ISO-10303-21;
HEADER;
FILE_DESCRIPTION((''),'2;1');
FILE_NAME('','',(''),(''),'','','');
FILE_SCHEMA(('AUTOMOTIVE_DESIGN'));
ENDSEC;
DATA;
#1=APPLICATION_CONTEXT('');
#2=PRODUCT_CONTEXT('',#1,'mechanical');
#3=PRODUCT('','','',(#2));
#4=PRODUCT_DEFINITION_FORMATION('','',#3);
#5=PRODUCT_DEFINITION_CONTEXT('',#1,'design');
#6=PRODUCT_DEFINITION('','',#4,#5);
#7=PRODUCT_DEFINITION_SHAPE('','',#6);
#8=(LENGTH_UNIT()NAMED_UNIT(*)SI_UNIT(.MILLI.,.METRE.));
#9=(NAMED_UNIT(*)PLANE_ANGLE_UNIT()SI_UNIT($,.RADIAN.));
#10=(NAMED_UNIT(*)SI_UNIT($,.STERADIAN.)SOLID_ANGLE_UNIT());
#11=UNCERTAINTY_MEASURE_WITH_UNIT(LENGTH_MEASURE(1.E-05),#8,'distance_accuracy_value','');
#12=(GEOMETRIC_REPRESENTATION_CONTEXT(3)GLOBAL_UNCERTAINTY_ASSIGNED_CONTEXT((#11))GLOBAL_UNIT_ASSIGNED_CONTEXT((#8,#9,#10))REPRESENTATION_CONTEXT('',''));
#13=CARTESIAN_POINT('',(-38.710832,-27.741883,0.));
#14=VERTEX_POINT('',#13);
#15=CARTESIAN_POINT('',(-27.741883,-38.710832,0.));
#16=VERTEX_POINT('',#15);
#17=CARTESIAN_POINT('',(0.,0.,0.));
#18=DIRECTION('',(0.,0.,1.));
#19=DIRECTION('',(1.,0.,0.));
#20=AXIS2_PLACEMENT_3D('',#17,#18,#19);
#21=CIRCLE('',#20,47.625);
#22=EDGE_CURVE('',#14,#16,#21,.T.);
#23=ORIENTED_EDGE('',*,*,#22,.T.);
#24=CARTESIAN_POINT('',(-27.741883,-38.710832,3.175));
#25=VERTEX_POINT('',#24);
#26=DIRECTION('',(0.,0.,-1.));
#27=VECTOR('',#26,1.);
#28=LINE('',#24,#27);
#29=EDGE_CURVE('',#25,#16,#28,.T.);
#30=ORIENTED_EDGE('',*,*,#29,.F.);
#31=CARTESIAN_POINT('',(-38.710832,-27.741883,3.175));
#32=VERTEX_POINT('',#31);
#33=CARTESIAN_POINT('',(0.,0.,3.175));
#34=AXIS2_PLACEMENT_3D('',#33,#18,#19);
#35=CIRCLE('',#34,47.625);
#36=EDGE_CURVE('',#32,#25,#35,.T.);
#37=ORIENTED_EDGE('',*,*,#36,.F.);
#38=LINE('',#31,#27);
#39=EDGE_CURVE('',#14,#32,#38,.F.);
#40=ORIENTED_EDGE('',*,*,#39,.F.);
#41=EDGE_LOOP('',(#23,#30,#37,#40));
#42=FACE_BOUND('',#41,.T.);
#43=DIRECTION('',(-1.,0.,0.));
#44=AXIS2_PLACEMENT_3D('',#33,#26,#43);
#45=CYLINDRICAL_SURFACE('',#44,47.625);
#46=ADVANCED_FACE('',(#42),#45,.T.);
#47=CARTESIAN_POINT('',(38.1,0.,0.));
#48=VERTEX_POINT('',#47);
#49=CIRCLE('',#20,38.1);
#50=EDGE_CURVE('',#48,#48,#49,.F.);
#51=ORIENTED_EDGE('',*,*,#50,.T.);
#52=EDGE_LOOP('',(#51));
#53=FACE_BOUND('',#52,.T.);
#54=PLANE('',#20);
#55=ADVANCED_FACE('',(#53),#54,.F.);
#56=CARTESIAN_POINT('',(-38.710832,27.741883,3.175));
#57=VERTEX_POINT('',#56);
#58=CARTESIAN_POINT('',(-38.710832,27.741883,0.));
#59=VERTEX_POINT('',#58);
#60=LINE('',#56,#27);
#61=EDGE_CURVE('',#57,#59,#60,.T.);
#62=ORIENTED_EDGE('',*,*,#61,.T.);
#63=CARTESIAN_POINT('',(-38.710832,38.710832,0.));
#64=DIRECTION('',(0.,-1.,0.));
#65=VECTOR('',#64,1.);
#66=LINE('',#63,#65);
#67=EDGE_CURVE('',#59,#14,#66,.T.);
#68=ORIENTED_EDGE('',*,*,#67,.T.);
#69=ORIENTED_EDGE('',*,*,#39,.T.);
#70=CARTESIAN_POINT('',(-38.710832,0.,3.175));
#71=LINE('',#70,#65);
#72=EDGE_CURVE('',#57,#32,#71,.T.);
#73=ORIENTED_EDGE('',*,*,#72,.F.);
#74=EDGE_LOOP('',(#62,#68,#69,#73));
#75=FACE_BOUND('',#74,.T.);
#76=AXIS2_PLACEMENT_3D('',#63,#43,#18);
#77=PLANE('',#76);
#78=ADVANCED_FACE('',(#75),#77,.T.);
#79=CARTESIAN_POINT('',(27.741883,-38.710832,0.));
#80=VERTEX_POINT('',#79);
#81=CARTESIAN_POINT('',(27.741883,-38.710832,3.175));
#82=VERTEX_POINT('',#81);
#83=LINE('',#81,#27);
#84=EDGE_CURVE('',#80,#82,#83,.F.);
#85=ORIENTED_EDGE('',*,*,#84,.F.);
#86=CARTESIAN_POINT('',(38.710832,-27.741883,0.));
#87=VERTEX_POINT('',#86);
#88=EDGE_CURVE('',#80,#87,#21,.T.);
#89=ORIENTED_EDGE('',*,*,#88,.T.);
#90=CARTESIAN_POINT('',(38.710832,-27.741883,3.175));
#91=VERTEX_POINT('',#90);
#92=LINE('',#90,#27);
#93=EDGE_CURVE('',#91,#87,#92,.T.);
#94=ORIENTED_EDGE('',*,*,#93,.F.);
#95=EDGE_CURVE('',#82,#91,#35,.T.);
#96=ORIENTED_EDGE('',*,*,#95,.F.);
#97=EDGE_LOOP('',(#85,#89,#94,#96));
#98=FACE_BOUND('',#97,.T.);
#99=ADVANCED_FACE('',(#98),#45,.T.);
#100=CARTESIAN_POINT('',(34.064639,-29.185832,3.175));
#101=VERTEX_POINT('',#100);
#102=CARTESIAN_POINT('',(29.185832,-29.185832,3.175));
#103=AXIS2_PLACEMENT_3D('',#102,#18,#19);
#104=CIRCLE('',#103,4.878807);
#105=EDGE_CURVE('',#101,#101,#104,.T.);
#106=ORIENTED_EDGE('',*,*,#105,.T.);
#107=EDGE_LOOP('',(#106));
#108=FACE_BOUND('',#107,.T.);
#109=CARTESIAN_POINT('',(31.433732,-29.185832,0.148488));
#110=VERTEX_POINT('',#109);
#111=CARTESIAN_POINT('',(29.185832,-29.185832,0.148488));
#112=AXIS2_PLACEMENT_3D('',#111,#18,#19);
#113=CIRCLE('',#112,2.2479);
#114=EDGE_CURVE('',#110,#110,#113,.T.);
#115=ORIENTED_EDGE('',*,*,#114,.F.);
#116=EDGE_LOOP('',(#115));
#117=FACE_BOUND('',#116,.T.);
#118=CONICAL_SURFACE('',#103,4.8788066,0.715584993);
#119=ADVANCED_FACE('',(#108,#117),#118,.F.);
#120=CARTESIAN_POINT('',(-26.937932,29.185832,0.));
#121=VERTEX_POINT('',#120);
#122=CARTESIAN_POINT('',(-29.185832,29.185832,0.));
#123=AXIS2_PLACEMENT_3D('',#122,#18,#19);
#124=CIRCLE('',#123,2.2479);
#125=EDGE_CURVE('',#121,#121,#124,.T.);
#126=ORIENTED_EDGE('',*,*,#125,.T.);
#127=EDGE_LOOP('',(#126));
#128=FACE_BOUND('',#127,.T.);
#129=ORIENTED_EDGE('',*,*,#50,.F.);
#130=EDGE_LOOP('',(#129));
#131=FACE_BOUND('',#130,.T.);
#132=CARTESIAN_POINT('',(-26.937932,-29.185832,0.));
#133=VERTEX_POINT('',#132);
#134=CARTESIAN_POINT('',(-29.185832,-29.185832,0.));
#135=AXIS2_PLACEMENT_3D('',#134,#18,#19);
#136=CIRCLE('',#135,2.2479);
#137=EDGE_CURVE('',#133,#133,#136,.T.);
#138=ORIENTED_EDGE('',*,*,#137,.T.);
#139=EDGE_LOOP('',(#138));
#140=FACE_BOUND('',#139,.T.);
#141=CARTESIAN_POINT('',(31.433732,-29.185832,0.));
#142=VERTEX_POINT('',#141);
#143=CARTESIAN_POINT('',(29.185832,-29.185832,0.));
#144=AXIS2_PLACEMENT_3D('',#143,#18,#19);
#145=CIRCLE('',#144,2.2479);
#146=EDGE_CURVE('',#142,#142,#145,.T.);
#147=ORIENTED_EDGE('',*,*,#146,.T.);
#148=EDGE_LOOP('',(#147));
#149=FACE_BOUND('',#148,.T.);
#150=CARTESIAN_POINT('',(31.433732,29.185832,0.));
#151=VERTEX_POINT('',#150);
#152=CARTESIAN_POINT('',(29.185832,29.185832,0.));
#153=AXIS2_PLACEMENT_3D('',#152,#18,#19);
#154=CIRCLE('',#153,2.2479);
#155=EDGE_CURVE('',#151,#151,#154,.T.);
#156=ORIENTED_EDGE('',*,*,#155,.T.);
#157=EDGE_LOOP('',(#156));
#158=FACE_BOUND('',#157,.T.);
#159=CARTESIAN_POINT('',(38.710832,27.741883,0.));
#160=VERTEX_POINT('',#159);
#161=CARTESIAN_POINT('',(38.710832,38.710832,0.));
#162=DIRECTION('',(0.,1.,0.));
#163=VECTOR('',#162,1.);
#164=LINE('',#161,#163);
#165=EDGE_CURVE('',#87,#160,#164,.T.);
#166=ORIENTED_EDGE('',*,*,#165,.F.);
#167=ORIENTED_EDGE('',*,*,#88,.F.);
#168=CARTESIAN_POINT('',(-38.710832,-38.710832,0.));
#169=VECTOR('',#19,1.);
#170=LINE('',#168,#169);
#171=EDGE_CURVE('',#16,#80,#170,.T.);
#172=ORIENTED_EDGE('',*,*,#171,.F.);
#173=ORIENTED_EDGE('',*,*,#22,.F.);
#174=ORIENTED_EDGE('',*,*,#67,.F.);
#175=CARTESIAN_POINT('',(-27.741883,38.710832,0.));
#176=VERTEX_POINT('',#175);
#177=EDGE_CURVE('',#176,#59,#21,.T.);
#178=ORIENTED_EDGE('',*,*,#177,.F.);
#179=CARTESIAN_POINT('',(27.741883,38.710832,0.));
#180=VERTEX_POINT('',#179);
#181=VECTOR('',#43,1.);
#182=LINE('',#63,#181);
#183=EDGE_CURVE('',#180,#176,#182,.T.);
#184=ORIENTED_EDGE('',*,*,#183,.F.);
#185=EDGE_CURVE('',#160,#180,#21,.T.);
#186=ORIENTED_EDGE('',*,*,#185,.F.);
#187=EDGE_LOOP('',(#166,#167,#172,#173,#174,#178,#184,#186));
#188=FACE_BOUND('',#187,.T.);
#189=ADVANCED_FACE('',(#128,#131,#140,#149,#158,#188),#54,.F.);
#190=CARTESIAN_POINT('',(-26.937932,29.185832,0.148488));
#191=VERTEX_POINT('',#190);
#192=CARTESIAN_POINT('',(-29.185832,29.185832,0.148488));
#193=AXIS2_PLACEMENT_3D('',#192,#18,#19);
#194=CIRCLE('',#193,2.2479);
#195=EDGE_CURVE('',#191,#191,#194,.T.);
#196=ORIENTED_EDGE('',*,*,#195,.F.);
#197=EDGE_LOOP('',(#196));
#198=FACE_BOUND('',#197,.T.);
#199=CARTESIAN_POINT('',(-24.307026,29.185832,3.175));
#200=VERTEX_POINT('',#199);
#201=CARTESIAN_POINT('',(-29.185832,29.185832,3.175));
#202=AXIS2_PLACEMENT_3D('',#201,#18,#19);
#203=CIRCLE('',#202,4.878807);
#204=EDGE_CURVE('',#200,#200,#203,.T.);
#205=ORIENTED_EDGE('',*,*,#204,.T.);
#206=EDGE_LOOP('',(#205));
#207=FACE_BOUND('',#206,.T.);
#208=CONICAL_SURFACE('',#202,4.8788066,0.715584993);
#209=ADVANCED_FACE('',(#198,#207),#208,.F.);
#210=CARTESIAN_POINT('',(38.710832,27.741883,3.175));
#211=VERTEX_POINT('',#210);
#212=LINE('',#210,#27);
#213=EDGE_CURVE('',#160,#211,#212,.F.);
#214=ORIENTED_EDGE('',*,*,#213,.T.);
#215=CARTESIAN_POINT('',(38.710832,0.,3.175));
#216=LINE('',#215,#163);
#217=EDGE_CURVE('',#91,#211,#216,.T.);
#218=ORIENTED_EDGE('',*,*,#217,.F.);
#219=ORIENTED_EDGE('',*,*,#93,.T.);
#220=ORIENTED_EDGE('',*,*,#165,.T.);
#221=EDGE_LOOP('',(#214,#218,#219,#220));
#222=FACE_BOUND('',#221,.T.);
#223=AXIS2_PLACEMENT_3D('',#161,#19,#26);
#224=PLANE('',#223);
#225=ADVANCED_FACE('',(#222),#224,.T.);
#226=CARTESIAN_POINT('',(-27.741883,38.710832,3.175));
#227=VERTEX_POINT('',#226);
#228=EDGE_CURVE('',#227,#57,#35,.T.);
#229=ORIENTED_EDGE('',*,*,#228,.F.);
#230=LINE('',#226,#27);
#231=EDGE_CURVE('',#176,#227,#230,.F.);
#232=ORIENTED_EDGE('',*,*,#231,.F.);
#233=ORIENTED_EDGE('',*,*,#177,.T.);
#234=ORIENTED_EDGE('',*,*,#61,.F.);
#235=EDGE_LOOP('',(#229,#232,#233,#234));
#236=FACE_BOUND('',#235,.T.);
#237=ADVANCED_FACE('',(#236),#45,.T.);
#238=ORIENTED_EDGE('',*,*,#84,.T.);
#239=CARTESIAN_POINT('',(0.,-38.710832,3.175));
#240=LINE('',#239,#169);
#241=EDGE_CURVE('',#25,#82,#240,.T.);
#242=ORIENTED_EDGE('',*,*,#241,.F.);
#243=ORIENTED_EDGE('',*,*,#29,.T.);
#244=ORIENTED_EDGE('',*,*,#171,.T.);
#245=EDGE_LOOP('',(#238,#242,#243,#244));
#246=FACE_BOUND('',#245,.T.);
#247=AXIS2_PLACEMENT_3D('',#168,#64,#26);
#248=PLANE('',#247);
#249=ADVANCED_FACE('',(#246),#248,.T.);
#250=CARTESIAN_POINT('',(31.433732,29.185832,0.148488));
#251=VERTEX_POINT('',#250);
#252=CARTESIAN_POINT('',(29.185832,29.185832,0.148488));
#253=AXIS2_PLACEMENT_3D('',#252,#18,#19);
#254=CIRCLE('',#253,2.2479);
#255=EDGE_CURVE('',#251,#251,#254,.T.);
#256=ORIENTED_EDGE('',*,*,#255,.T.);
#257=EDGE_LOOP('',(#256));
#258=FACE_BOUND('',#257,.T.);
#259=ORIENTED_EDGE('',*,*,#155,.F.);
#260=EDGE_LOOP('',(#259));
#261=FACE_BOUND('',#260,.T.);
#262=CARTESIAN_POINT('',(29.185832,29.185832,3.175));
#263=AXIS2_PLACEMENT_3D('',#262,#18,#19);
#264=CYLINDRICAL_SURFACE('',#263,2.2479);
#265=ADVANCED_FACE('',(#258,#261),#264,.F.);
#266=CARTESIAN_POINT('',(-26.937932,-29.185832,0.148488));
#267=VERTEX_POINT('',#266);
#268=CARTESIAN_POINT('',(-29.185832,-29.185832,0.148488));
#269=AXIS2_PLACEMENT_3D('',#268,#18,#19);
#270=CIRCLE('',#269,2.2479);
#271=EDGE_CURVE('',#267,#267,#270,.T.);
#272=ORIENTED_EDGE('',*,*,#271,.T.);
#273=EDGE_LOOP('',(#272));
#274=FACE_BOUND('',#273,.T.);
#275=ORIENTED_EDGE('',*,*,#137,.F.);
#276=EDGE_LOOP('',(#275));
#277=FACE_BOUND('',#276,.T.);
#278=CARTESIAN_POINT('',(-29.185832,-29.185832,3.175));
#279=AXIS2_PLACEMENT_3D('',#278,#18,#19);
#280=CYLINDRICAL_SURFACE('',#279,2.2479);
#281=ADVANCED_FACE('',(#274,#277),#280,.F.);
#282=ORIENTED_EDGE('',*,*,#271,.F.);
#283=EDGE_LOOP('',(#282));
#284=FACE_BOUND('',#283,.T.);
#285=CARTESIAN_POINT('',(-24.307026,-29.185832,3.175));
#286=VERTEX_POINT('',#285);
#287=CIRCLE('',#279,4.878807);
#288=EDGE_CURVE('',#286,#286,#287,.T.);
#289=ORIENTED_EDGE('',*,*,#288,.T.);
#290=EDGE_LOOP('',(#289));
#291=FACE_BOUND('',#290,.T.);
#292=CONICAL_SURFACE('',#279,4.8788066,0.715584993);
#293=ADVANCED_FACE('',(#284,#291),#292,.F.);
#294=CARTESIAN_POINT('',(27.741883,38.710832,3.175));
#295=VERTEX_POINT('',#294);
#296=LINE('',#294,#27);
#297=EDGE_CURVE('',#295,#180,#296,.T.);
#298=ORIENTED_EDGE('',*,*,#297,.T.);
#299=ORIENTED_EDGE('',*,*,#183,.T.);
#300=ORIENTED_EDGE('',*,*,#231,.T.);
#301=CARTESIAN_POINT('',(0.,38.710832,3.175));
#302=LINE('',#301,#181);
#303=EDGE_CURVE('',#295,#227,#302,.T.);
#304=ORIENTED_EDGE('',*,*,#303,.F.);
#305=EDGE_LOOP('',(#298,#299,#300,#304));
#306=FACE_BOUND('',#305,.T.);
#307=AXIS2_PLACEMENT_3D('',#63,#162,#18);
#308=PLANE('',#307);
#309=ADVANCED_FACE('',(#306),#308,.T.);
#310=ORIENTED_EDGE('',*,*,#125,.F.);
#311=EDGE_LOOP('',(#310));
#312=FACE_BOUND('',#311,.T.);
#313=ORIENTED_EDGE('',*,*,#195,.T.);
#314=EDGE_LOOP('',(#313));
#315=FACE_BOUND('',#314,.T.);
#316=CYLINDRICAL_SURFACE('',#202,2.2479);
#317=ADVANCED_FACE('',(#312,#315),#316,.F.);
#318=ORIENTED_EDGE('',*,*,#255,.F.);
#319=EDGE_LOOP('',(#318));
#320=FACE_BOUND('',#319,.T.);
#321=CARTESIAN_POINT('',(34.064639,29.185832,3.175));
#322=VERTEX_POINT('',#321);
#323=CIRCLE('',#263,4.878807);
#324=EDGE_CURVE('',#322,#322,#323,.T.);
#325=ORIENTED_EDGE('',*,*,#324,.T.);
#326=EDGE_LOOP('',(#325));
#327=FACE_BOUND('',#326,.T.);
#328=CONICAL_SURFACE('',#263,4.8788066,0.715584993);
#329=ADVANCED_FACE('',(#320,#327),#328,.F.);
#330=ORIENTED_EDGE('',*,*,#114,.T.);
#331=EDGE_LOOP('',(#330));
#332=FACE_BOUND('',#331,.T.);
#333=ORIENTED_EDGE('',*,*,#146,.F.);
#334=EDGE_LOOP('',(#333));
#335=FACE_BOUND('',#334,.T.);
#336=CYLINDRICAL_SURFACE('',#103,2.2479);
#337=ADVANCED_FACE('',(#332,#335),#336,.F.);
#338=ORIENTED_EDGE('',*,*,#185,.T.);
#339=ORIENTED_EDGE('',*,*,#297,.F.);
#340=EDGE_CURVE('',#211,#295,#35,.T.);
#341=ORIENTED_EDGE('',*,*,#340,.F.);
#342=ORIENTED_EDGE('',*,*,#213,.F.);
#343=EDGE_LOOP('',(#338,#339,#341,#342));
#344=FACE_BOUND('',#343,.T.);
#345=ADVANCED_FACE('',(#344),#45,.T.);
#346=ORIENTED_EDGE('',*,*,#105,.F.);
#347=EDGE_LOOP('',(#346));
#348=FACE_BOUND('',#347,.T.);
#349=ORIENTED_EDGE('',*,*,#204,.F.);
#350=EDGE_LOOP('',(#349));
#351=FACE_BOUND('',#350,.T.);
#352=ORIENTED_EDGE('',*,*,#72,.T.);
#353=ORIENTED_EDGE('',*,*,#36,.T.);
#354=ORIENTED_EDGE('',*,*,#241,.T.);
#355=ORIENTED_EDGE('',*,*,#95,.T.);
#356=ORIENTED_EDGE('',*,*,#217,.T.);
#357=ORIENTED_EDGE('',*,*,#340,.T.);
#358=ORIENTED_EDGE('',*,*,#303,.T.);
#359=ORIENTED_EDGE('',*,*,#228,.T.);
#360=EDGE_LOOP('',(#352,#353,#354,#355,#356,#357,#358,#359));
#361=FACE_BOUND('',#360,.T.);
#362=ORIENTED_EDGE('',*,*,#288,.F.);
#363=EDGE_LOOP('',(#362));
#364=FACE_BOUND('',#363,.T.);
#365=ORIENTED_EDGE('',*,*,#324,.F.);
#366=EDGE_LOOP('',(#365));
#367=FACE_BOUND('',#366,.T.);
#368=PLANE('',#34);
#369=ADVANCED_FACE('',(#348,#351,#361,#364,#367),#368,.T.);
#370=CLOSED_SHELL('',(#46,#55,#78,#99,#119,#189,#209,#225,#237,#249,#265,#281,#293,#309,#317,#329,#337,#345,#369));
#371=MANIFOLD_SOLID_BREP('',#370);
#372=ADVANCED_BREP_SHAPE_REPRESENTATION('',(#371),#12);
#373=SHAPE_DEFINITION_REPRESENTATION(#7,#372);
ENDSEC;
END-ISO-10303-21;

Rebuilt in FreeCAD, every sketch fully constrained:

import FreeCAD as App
import Part
import Sketcher
from FreeCAD import Vector
Q = App.Units.Quantity


def add_polygon(sketch, points):
    """Adds a closed chain of lines whose ends are joined by coincident constraints."""
    first, n = sketch.GeometryCount, len(points)
    for a, b in zip(points, points[1:] + points[:1]):
        sketch.addGeometry(Part.LineSegment(App.Vector(*a, 0), App.Vector(*b, 0)), False)
    for i in range(n):
        sketch.addConstraint(Sketcher.Constraint("Coincident", first + i, 2, first + (i + 1) % n, 1))

doc = App.newDocument("Part")
params = doc.addObject("Spreadsheet::Sheet", "Params")
for row, (alias, value) in enumerate([
    ("sketch1_diameter", "3.75 in"),
    ("pad1_length", "0.125 in"),
    ("sketch2_height", "0.125 in"),
    ("groove_angle", "360 deg"),
], start=1):
    params.set(f"A{row}", alias)
    params.set(f"B{row}", "=" + value)
    params.setAlias(f"B{row}", alias)

body = doc.addObject("PartDesign::Body", "Body")

sketch1 = body.newObject("Sketcher::SketchObject", "Sketch")
sketch1.AttachmentSupport = (doc.getObject("XY_Plane"), [""])
sketch1.MapMode = "FlatFace"
sketch1.addGeometry(Part.Circle(Vector(0, 0, 0), Vector(0, 0, 1), 48), False)
sketch1.addConstraint(Sketcher.Constraint("Coincident", 0, 3, -1, 1))
sketch1.addConstraint(Sketcher.Constraint("Diameter", 0, Q("3.75 in")))
sketch1.setExpression("Constraints[1]", "Params.sketch1_diameter")
pad1 = body.newObject("PartDesign::Pad", "Pad")
pad1.Profile = sketch1
pad1.setExpression("Length", "Params.pad1_length")

sketch2 = body.newObject("Sketcher::SketchObject", "Sketch001")
sketch2.AttachmentSupport = (doc.getObject("YZ_Plane"), [""])
sketch2.MapMode = "FlatFace"
sketch2.AttachmentOffset = App.Placement(Vector(0, 0, 29.185832), App.Rotation())
add_polygon(sketch2, [(29.19, 0), (29.19, 3.17), (24.31, 3.17), (26.94, 0.15), (26.94, 0)])
sketch2.addGeometry(Part.LineSegment(Vector(29.19, 3.17, 0), Vector(29.19, 0, 0)), True)
sketch2.addConstraint(Sketcher.Constraint("Vertical", 0))
sketch2.addConstraint(Sketcher.Constraint("Horizontal", 1))
sketch2.addConstraint(Sketcher.Constraint("Vertical", 3))
sketch2.addConstraint(Sketcher.Constraint("Horizontal", 4))
sketch2.addConstraint(Sketcher.Constraint("Vertical", 5))
sketch2.addConstraint(Sketcher.Constraint("Coincident", 5, 1, 0, 2))
sketch2.addConstraint(Sketcher.Constraint("PointOnObject", 3, 2, -1))
sketch2.addConstraint(Sketcher.Constraint("PointOnObject", 5, 2, -1))
sketch2.addConstraint(Sketcher.Constraint("Angle", 2, Q("-49 deg")))
sketch2.addConstraint(Sketcher.Constraint("DistanceY", 0, 1, 0, 2, Q("0.125 in")))
sketch2.addConstraint(Sketcher.Constraint("DistanceX", 4, 1, 4, 2, Q("0.0885 in")))
sketch2.addConstraint(Sketcher.Constraint("DistanceY", 3, 2, 3, 1, Q("0.148488 mm")))
sketch2.addConstraint(Sketcher.Constraint("DistanceX", -1, 1, 0, 2, Q("29.185832 mm")))
sketch2.setExpression("Constraints[14]", "Params.sketch2_height")
groove = body.newObject("PartDesign::Groove", "Groove")
groove.Profile = sketch2
groove.ReferenceAxis = (sketch2, ["Axis0"])
groove.setExpression("Angle", "Params.groove_angle")
doc.recompute()

polarpattern = body.newObject("PartDesign::PolarPattern", "PolarPattern")
polarpattern.Originals = [groove]
polarpattern.Axis = (doc.getObject("Z_Axis"), [""])
polarpattern.Angle = 360
polarpattern.Occurrences = 4
body.Tip = polarpattern

sketch3 = body.newObject("Sketcher::SketchObject", "Sketch002")
sketch3.AttachmentSupport = (doc.getObject("XY_Plane"), [""])
sketch3.MapMode = "FlatFace"
sketch3.AttachmentOffset = App.Placement(Vector(0, 0, 0.125 * 25.4), App.Rotation())
add_polygon(sketch3, [(-62, 62), (-62, -62), (62, -62), (62, 62)])
add_polygon(sketch3, [(39, -39), (-39, -39), (-39, 39), (39, 39)])
sketch3.addConstraint(Sketcher.Constraint("Vertical", 0))
sketch3.addConstraint(Sketcher.Constraint("Horizontal", 1))
sketch3.addConstraint(Sketcher.Constraint("Vertical", 2))
sketch3.addConstraint(Sketcher.Constraint("Horizontal", 3))
sketch3.addConstraint(Sketcher.Constraint("Horizontal", 4))
sketch3.addConstraint(Sketcher.Constraint("Vertical", 5))
sketch3.addConstraint(Sketcher.Constraint("Horizontal", 6))
sketch3.addConstraint(Sketcher.Constraint("Vertical", 7))
sketch3.addConstraint(Sketcher.Constraint("Symmetric", 0, 2, 2, 2, -1, 1))
sketch3.addConstraint(Sketcher.Constraint("Symmetric", 4, 2, 6, 2, -1, 1))
sketch3.addConstraint(Sketcher.Constraint("Equal", 3, 0))
sketch3.addConstraint(Sketcher.Constraint("Equal", 6, 5))
sketch3.addConstraint(Sketcher.Constraint("DistanceX", 1, 1, 1, 2, Q("124.198 mm")))
sketch3.addConstraint(Sketcher.Constraint("DistanceX", 4, 2, 4, 1, Q("77.421665 mm")))
pocket1 = body.newObject("PartDesign::Pocket", "Pocket")
pocket1.Profile = sketch3
pocket1.Type = "ThroughAll"

doc.recompute()
